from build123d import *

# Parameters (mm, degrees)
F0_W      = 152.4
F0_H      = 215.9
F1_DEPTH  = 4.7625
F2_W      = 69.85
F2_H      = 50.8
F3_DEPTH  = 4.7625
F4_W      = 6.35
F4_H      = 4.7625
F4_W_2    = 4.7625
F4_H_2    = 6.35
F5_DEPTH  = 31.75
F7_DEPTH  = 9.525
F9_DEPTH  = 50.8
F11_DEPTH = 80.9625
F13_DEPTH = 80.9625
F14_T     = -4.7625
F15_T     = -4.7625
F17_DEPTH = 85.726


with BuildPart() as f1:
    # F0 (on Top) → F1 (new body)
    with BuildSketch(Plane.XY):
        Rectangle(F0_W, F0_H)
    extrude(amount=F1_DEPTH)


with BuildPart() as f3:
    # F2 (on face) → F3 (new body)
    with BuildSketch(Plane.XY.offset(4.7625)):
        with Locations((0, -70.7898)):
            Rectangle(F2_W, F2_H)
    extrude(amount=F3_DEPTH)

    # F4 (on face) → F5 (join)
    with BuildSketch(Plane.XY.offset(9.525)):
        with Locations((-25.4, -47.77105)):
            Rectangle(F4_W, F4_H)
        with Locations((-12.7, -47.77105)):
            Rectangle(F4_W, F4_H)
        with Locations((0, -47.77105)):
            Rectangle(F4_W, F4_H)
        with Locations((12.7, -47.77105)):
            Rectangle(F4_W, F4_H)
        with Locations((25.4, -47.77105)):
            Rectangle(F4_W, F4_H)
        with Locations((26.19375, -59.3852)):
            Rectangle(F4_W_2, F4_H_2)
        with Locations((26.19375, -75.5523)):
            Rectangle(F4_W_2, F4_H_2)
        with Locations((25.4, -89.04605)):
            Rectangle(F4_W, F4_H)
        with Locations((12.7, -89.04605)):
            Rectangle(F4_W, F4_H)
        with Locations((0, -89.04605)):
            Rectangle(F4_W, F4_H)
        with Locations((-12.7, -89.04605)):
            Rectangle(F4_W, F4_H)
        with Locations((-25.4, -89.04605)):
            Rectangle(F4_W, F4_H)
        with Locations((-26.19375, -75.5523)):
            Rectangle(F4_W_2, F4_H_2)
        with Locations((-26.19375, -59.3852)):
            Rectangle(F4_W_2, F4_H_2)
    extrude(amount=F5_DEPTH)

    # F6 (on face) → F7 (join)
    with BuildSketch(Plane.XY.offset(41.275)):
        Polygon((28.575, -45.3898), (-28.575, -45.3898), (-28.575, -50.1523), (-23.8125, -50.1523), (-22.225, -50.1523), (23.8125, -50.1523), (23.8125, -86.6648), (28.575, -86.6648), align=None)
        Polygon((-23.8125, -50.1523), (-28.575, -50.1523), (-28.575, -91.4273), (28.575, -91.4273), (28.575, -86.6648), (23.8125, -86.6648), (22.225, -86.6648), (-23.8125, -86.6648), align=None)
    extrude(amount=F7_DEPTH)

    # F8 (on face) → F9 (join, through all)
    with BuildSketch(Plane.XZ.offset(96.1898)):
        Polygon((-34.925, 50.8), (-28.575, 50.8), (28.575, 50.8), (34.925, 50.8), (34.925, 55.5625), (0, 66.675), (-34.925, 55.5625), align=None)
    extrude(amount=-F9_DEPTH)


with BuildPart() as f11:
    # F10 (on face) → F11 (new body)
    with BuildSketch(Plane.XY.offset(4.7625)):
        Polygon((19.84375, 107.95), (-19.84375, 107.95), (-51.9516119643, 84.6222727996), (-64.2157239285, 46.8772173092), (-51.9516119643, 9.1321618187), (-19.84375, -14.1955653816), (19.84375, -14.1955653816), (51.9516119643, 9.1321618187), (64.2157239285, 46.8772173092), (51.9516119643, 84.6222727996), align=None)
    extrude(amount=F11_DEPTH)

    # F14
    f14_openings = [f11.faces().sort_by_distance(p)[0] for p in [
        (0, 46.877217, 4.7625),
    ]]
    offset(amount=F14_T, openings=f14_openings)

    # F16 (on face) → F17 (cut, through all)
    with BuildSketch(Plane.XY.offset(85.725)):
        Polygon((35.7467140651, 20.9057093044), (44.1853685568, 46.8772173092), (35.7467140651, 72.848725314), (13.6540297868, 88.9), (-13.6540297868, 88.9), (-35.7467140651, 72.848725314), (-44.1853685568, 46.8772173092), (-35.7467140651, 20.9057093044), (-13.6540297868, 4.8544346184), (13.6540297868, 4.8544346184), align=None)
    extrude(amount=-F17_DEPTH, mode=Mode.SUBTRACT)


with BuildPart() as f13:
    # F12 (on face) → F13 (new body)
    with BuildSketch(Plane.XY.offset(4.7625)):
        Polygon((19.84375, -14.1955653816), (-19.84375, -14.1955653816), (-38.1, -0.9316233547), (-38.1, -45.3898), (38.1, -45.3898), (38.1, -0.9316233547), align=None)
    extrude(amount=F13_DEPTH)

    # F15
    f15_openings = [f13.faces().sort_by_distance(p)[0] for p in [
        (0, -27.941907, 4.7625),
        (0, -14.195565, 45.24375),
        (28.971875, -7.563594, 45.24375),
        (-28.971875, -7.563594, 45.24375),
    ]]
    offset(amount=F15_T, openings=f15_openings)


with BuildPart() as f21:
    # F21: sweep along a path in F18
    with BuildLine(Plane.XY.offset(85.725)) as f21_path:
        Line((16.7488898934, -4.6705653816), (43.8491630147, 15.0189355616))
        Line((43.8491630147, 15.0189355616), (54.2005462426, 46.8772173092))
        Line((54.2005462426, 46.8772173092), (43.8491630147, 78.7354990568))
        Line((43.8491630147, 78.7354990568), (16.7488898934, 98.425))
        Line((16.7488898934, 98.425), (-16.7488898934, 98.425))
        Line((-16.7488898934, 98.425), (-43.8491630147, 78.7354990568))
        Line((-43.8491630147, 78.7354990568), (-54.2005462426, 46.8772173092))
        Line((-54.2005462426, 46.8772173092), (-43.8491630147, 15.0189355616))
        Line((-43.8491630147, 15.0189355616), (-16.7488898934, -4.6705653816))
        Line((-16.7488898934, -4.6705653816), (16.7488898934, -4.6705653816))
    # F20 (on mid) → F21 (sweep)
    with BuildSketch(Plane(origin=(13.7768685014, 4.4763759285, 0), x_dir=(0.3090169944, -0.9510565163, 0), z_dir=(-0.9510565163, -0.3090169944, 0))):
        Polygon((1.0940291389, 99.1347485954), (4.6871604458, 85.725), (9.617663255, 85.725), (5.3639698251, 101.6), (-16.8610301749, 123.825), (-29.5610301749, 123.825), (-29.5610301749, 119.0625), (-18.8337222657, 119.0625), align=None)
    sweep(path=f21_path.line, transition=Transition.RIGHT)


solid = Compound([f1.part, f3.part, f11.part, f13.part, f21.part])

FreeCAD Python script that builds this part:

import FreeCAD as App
import Part
import Sketcher

V = App.Vector
Q = App.Units.Quantity


def faces_at(feature, points):
    """Names of the faces that lie closest to the given points."""
    faces = feature.Shape.Faces
    near = lambda p: min(range(len(faces)), key=lambda i: faces[i].distToShape(Part.Vertex(*p))[0])
    return sorted({f"Face{near(p) + 1}" for p in points})

doc = App.newDocument("Part")
body = doc.addObject("PartDesign::Body", "Body")

sketch1 = body.newObject("Sketcher::SketchObject", "Sketch")
sketch1.AttachmentSupport = (doc.getObject("XY_Plane"), [""])
sketch1.MapMode = "FlatFace"
sketch1.addGeometry(Part.LineSegment(V(-76.2, 107.95, 0), V(-76.2, -107.95, 0)), False)
sketch1.addGeometry(Part.LineSegment(V(-76.2, -107.95, 0), V(76.2, -107.95, 0)), False)
sketch1.addGeometry(Part.LineSegment(V(76.2, -107.95, 0), V(76.2, 107.95, 0)), False)
sketch1.addGeometry(Part.LineSegment(V(76.2, 107.95, 0), V(-76.2, 107.95, 0)), False)
sketch1.addConstraint(Sketcher.Constraint("Coincident", 0, 2, 1, 1))
sketch1.addConstraint(Sketcher.Constraint("Coincident", 1, 2, 2, 1))
sketch1.addConstraint(Sketcher.Constraint("Coincident", 2, 2, 3, 1))
sketch1.addConstraint(Sketcher.Constraint("Coincident", 3, 2, 0, 1))
sketch1.addConstraint(Sketcher.Constraint("Vertical", 0))
sketch1.addConstraint(Sketcher.Constraint("Horizontal", 1))
sketch1.addConstraint(Sketcher.Constraint("Vertical", 2))
sketch1.addConstraint(Sketcher.Constraint("Horizontal", 3))
sketch1.addConstraint(Sketcher.Constraint("Symmetric", 0, 2, 2, 2, -1, 1))
sketch1.addConstraint(Sketcher.Constraint("DistanceX", 1, 1, 1, 2, Q("6 in")))
sketch1.addConstraint(Sketcher.Constraint("DistanceY", 0, 2, 0, 1, Q("8.5 in")))
pad1 = body.newObject("PartDesign::Pad", "Pad")
pad1.Profile = sketch1
pad1.Length = Q("0.1875 in")
body2 = doc.addObject("PartDesign::Body", "Body001")

sketch2 = body2.newObject("Sketcher::SketchObject", "Sketch001")
sketch2.AttachmentSupport = (doc.getObject("XY_Plane001"), [""])
sketch2.MapMode = "FlatFace"
sketch2.AttachmentOffset = App.Placement(V(0, 0, 0.1875 * 25.4), App.Rotation())
sketch2.addGeometry(Part.LineSegment(V(-34.925, -45.3898, 0), V(-34.925, -96.1898, 0)), False)
sketch2.addGeometry(Part.LineSegment(V(-34.925, -96.1898, 0), V(34.925, -96.1898, 0)), False)
sketch2.addGeometry(Part.LineSegment(V(34.925, -96.1898, 0), V(34.925, -45.3898, 0)), False)
sketch2.addGeometry(Part.LineSegment(V(34.925, -45.3898, 0), V(-34.925, -45.3898, 0)), False)
sketch2.addConstraint(Sketcher.Constraint("Coincident", 0, 2, 1, 1))
sketch2.addConstraint(Sketcher.Constraint("Coincident", 1, 2, 2, 1))
sketch2.addConstraint(Sketcher.Constraint("Coincident", 2, 2, 3, 1))
sketch2.addConstraint(Sketcher.Constraint("Coincident", 3, 2, 0, 1))
sketch2.addConstraint(Sketcher.Constraint("Vertical", 0))
sketch2.addConstraint(Sketcher.Constraint("Horizontal", 1))
sketch2.addConstraint(Sketcher.Constraint("Vertical", 2))
sketch2.addConstraint(Sketcher.Constraint("Horizontal", 3))
sketch2.addConstraint(Sketcher.Constraint("DistanceY", 0, 2, 0, 1, Q("2 in")))
sketch2.addConstraint(Sketcher.Constraint("DistanceX", 1, 1, 1, 2, Q("2.75 in")))
sketch2.addConstraint(Sketcher.Constraint("DistanceX", 0, 2, -1, 1, Q("1.375 in")))
sketch2.addConstraint(Sketcher.Constraint("DistanceY", 0, 2, -1, 1, Q("3.787 in")))
pad2 = body2.newObject("PartDesign::Pad", "Pad001")
pad2.Profile = sketch2
pad2.Length = Q("0.1875 in")

sketch3 = body2.newObject("Sketcher::SketchObject", "Sketch002")
sketch3.AttachmentSupport = (doc.getObject("XY_Plane001"), [""])
sketch3.MapMode = "FlatFace"
sketch3.AttachmentOffset = App.Placement(V(0, 0, 0.375 * 25.4), App.Rotation())
sketch3.addGeometry(Part.LineSegment(V(-28.575, -45.3898, 0), V(-28.575, -50.1523, 0)), False)
sketch3.addGeometry(Part.LineSegment(V(-28.575, -50.1523, 0), V(-22.225, -50.1523, 0)), False)
sketch3.addGeometry(Part.LineSegment(V(-22.225, -50.1523, 0), V(-22.225, -45.3898, 0)), False)
sketch3.addGeometry(Part.LineSegment(V(-22.225, -45.3898, 0), V(-28.575, -45.3898, 0)), False)
sketch3.addGeometry(Part.LineSegment(V(-15.875, -45.3898, 0), V(-15.875, -50.1523, 0)), False)
sketch3.addGeometry(Part.LineSegment(V(-15.875, -50.1523, 0), V(-9.525, -50.1523, 0)), False)
sketch3.addGeometry(Part.LineSegment(V(-9.525, -50.1523, 0), V(-9.525, -45.3898, 0)), False)
sketch3.addGeometry(Part.LineSegment(V(-9.525, -45.3898, 0), V(-15.875, -45.3898, 0)), False)
sketch3.addGeometry(Part.LineSegment(V(-3.175, -45.3898, 0), V(-3.175, -50.1523, 0)), False)
sketch3.addGeometry(Part.LineSegment(V(-3.175, -50.1523, 0), V(3.175, -50.1523, 0)), False)
sketch3.addGeometry(Part.LineSegment(V(3.175, -50.1523, 0), V(3.175, -45.3898, 0)), False)
sketch3.addGeometry(Part.LineSegment(V(3.175, -45.3898, 0), V(-3.175, -45.3898, 0)), False)
sketch3.addGeometry(Part.LineSegment(V(9.525, -45.3898, 0), V(9.525, -50.1523, 0)), False)
sketch3.addGeometry(Part.LineSegment(V(9.525, -50.1523, 0), V(15.875, -50.1523, 0)), False)
sketch3.addGeometry(Part.LineSegment(V(15.875, -50.1523, 0), V(15.875, -45.3898, 0)), False)
sketch3.addGeometry(Part.LineSegment(V(15.875, -45.3898, 0), V(9.525, -45.3898, 0)), False)
sketch3.addGeometry(Part.LineSegment(V(22.225, -45.3898, 0), V(22.225, -50.1523, 0)), False)
sketch3.addGeometry(Part.LineSegment(V(22.225, -50.1523, 0), V(28.575, -50.1523, 0)), False)
sketch3.addGeometry(Part.LineSegment(V(28.575, -50.1523, 0), V(28.575, -45.3898, 0)), False)
sketch3.addGeometry(Part.LineSegment(V(28.575, -45.3898, 0), V(22.225, -45.3898, 0)), False)
sketch3.addGeometry(Part.LineSegment(V(23.8125, -56.2102, 0), V(23.8125, -62.5602, 0)), False)
sketch3.addGeometry(Part.LineSegment(V(23.8125, -62.5602, 0), V(28.575, -62.5602, 0)), False)
sketch3.addGeometry(Part.LineSegment(V(28.575, -62.5602, 0), V(28.575, -56.2102, 0)), False)
sketch3.addGeometry(Part.LineSegment(V(28.575, -56.2102, 0), V(23.8125, -56.2102, 0)), False)
sketch3.addGeometry(Part.LineSegment(V(23.8125, -72.3773, 0), V(23.8125, -78.7273, 0)), False)
sketch3.addGeometry(Part.LineSegment(V(23.8125, -78.7273, 0), V(28.575, -78.7273, 0)), False)
sketch3.addGeometry(Part.LineSegment(V(28.575, -78.7273, 0), V(28.575, -72.3773, 0)), False)
sketch3.addGeometry(Part.LineSegment(V(28.575, -72.3773, 0), V(23.8125, -72.3773, 0)), False)
sketch3.addGeometry(Part.LineSegment(V(22.225, -86.6648, 0), V(22.225, -91.4273, 0)), False)
sketch3.addGeometry(Part.LineSegment(V(22.225, -91.4273, 0), V(28.575, -91.4273, 0)), False)
sketch3.addGeometry(Part.LineSegment(V(28.575, -91.4273, 0), V(28.575, -86.6648, 0)), False)
sketch3.addGeometry(Part.LineSegment(V(28.575, -86.6648, 0), V(22.225, -86.6648, 0)), False)
sketch3.addGeometry(Part.LineSegment(V(9.525, -86.6648, 0), V(9.525, -91.4273, 0)), False)
sketch3.addGeometry(Part.LineSegment(V(9.525, -91.4273, 0), V(15.875, -91.4273, 0)), False)
sketch3.addGeometry(Part.LineSegment(V(15.875, -91.4273, 0), V(15.875, -86.6648, 0)), False)
sketch3.addGeometry(Part.LineSegment(V(15.875, -86.6648, 0), V(9.525, -86.6648, 0)), False)
sketch3.addGeometry(Part.LineSegment(V(-3.175, -86.6648, 0), V(-3.175, -91.4273, 0)), False)
sketch3.addGeometry(Part.LineSegment(V(-3.175, -91.4273, 0), V(3.175, -91.4273, 0)), False)
sketch3.addGeometry(Part.LineSegment(V(3.175, -91.4273, 0), V(3.175, -86.6648, 0)), False)
sketch3.addGeometry(Part.LineSegment(V(3.175, -86.6648, 0), V(-3.175, -86.6648, 0)), False)
sketch3.addGeometry(Part.LineSegment(V(-15.875, -86.6648, 0), V(-15.875, -91.4273, 0)), False)
sketch3.addGeometry(Part.LineSegment(V(-15.875, -91.4273, 0), V(-9.525, -91.4273, 0)), False)
sketch3.addGeometry(Part.LineSegment(V(-9.525, -91.4273, 0), V(-9.525, -86.6648, 0)), False)
sketch3.addGeometry(Part.LineSegment(V(-9.525, -86.6648, 0), V(-15.875, -86.6648, 0)), False)
sketch3.addGeometry(Part.LineSegment(V(-28.575, -86.6648, 0), V(-28.575, -91.4273, 0)), False)
sketch3.addGeometry(Part.LineSegment(V(-28.575, -91.4273, 0), V(-22.225, -91.4273, 0)), False)
sketch3.addGeometry(Part.LineSegment(V(-22.225, -91.4273, 0), V(-22.225, -86.6648, 0)), False)
sketch3.addGeometry(Part.LineSegment(V(-22.225, -86.6648, 0), V(-28.575, -86.6648, 0)), False)
sketch3.addGeometry(Part.LineSegment(V(-28.575, -72.3773, 0), V(-28.575, -78.7273, 0)), False)
sketch3.addGeometry(Part.LineSegment(V(-28.575, -78.7273, 0), V(-23.8125, -78.7273, 0)), False)
sketch3.addGeometry(Part.LineSegment(V(-23.8125, -78.7273, 0), V(-23.8125, -72.3773, 0)), False)
sketch3.addGeometry(Part.LineSegment(V(-23.8125, -72.3773, 0), V(-28.575, -72.3773, 0)), False)
sketch3.addGeometry(Part.LineSegment(V(-28.575, -56.2102, 0), V(-28.575, -62.5602, 0)), False)
sketch3.addGeometry(Part.LineSegment(V(-28.575, -62.5602, 0), V(-23.8125, -62.5602, 0)), False)
sketch3.addGeometry(Part.LineSegment(V(-23.8125, -62.5602, 0), V(-23.8125, -56.2102, 0)), False)
sketch3.addGeometry(Part.LineSegment(V(-23.8125, -56.2102, 0), V(-28.575, -56.2102, 0)), False)
sketch3.addConstraint(Sketcher.Constraint("Coincident", 0, 2, 1, 1))
sketch3.addConstraint(Sketcher.Constraint("Coincident", 1, 2, 2, 1))
sketch3.addConstraint(Sketcher.Constraint("Coincident", 2, 2, 3, 1))
sketch3.addConstraint(Sketcher.Constraint("Coincident", 3, 2, 0, 1))
sketch3.addConstraint(Sketcher.Constraint("Coincident", 4, 2, 5, 1))
sketch3.addConstraint(Sketcher.Constraint("Coincident", 5, 2, 6, 1))
sketch3.addConstraint(Sketcher.Constraint("Coincident", 6, 2, 7, 1))
sketch3.addConstraint(Sketcher.Constraint("Coincident", 7, 2, 4, 1))
sketch3.addConstraint(Sketcher.Constraint("Coincident", 8, 2, 9, 1))
sketch3.addConstraint(Sketcher.Constraint("Coincident", 9, 2, 10, 1))
sketch3.addConstraint(Sketcher.Constraint("Coincident", 10, 2, 11, 1))
sketch3.addConstraint(Sketcher.Constraint("Coincident", 11, 2, 8, 1))
sketch3.addConstraint(Sketcher.Constraint("Coincident", 12, 2, 13, 1))
sketch3.addConstraint(Sketcher.Constraint("Coincident", 13, 2, 14, 1))
sketch3.addConstraint(Sketcher.Constraint("Coincident", 14, 2, 15, 1))
sketch3.addConstraint(Sketcher.Constraint("Coincident", 15, 2, 12, 1))
sketch3.addConstraint(Sketcher.Constraint("Coincident", 16, 2, 17, 1))
sketch3.addConstraint(Sketcher.Constraint("Coincident", 17, 2, 18, 1))
sketch3.addConstraint(Sketcher.Constraint("Coincident", 18, 2, 19, 1))
sketch3.addConstraint(Sketcher.Constraint("Coincident", 19, 2, 16, 1))
sketch3.addConstraint(Sketcher.Constraint("Coincident", 20, 2, 21, 1))
sketch3.addConstraint(Sketcher.Constraint("Coincident", 21, 2, 22, 1))
sketch3.addConstraint(Sketcher.Constraint("Coincident", 22, 2, 23, 1))
sketch3.addConstraint(Sketcher.Constraint("Coincident", 23, 2, 20, 1))
sketch3.addConstraint(Sketcher.Constraint("Coincident", 24, 2, 25, 1))
sketch3.addConstraint(Sketcher.Constraint("Coincident", 25, 2, 26, 1))
sketch3.addConstraint(Sketcher.Constraint("Coincident", 26, 2, 27, 1))
sketch3.addConstraint(Sketcher.Constraint("Coincident", 27, 2, 24, 1))
sketch3.addConstraint(Sketcher.Constraint("Coincident", 28, 2, 29, 1))
sketch3.addConstraint(Sketcher.Constraint("Coincident", 29, 2, 30, 1))
sketch3.addConstraint(Sketcher.Constraint("Coincident", 30, 2, 31, 1))
sketch3.addConstraint(Sketcher.Constraint("Coincident", 31, 2, 28, 1))
sketch3.addConstraint(Sketcher.Constraint("Coincident", 32, 2, 33, 1))
sketch3.addConstraint(Sketcher.Constraint("Coincident", 33, 2, 34, 1))
sketch3.addConstraint(Sketcher.Constraint("Coincident", 34, 2, 35, 1))
sketch3.addConstraint(Sketcher.Constraint("Coincident", 35, 2, 32, 1))
sketch3.addConstraint(Sketcher.Constraint("Coincident", 36, 2, 37, 1))
sketch3.addConstraint(Sketcher.Constraint("Coincident", 37, 2, 38, 1))
sketch3.addConstraint(Sketcher.Constraint("Coincident", 38, 2, 39, 1))
sketch3.addConstraint(Sketcher.Constraint("Coincident", 39, 2, 36, 1))
sketch3.addConstraint(Sketcher.Constraint("Coincident", 40, 2, 41, 1))
sketch3.addConstraint(Sketcher.Constraint("Coincident", 41, 2, 42, 1))
sketch3.addConstraint(Sketcher.Constraint("Coincident", 42, 2, 43, 1))
sketch3.addConstraint(Sketcher.Constraint("Coincident", 43, 2, 40, 1))
sketch3.addConstraint(Sketcher.Constraint("Coincident", 44, 2, 45, 1))
sketch3.addConstraint(Sketcher.Constraint("Coincident", 45, 2, 46, 1))
sketch3.addConstraint(Sketcher.Constraint("Coincident", 46, 2, 47, 1))
sketch3.addConstraint(Sketcher.Constraint("Coincident", 47, 2, 44, 1))
sketch3.addConstraint(Sketcher.Constraint("Coincident", 48, 2, 49, 1))
sketch3.addConstraint(Sketcher.Constraint("Coincident", 49, 2, 50, 1))
sketch3.addConstraint(Sketcher.Constraint("Coincident", 50, 2, 51, 1))
sketch3.addConstraint(Sketcher.Constraint("Coincident", 51, 2, 48, 1))
sketch3.addConstraint(Sketcher.Constraint("Coincident", 52, 2, 53, 1))
sketch3.addConstraint(Sketcher.Constraint("Coincident", 53, 2, 54, 1))
sketch3.addConstraint(Sketcher.Constraint("Coincident", 54, 2, 55, 1))
sketch3.addConstraint(Sketcher.Constraint("Coincident", 55, 2, 52, 1))
sketch3.addConstraint(Sketcher.Constraint("Vertical", 0))
sketch3.addConstraint(Sketcher.Constraint("Horizontal", 1))
sketch3.addConstraint(Sketcher.Constraint("Vertical", 2))
sketch3.addConstraint(Sketcher.Constraint("Horizontal", 3))
sketch3.addConstraint(Sketcher.Constraint("Vertical", 4))
sketch3.addConstraint(Sketcher.Constraint("Horizontal", 5))
sketch3.addConstraint(Sketcher.Constraint("Vertical", 6))
sketch3.addConstraint(Sketcher.Constraint("Horizontal", 7))
sketch3.addConstraint(Sketcher.Constraint("Vertical", 8))
sketch3.addConstraint(Sketcher.Constraint("Horizontal", 9))
sketch3.addConstraint(Sketcher.Constraint("Vertical", 10))
sketch3.addConstraint(Sketcher.Constraint("Horizontal", 11))
sketch3.addConstraint(Sketcher.Constraint("Vertical", 12))
sketch3.addConstraint(Sketcher.Constraint("Horizontal", 13))
sketch3.addConstraint(Sketcher.Constraint("Vertical", 14))
sketch3.addConstraint(Sketcher.Constraint("Horizontal", 15))
sketch3.addConstraint(Sketcher.Constraint("Vertical", 16))
sketch3.addConstraint(Sketcher.Constraint("Horizontal", 17))
sketch3.addConstraint(Sketcher.Constraint("Vertical", 18))
sketch3.addConstraint(Sketcher.Constraint("Horizontal", 19))
sketch3.addConstraint(Sketcher.Constraint("Vertical", 20))
sketch3.addConstraint(Sketcher.Constraint("Horizontal", 21))
sketch3.addConstraint(Sketcher.Constraint("Vertical", 22))
sketch3.addConstraint(Sketcher.Constraint("Horizontal", 23))
sketch3.addConstraint(Sketcher.Constraint("Vertical", 24))
sketch3.addConstraint(Sketcher.Constraint("Horizontal", 25))
sketch3.addConstraint(Sketcher.Constraint("Vertical", 26))
sketch3.addConstraint(Sketcher.Constraint("Horizontal", 27))
sketch3.addConstraint(Sketcher.Constraint("Vertical", 28))
sketch3.addConstraint(Sketcher.Constraint("Horizontal", 29))
sketch3.addConstraint(Sketcher.Constraint("Vertical", 30))
sketch3.addConstraint(Sketcher.Constraint("Horizontal", 31))
sketch3.addConstraint(Sketcher.Constraint("Vertical", 32))
sketch3.addConstraint(Sketcher.Constraint("Horizontal", 33))
sketch3.addConstraint(Sketcher.Constraint("Vertical", 34))
sketch3.addConstraint(Sketcher.Constraint("Horizontal", 35))
sketch3.addConstraint(Sketcher.Constraint("Vertical", 36))
sketch3.addConstraint(Sketcher.Constraint("Horizontal", 37))
sketch3.addConstraint(Sketcher.Constraint("Vertical", 38))
sketch3.addConstraint(Sketcher.Constraint("Horizontal", 39))
sketch3.addConstraint(Sketcher.Constraint("Vertical", 40))
sketch3.addConstraint(Sketcher.Constraint("Horizontal", 41))
sketch3.addConstraint(Sketcher.Constraint("Vertical", 42))
sketch3.addConstraint(Sketcher.Constraint("Horizontal", 43))
sketch3.addConstraint(Sketcher.Constraint("Vertical", 44))
sketch3.addConstraint(Sketcher.Constraint("Horizontal", 45))
sketch3.addConstraint(Sketcher.Constraint("Vertical", 46))
sketch3.addConstraint(Sketcher.Constraint("Horizontal", 47))
sketch3.addConstraint(Sketcher.Constraint("Vertical", 48))
sketch3.addConstraint(Sketcher.Constraint("Horizontal", 49))
sketch3.addConstraint(Sketcher.Constraint("Vertical", 50))
sketch3.addConstraint(Sketcher.Constraint("Horizontal", 51))
sketch3.addConstraint(Sketcher.Constraint("Vertical", 52))
sketch3.addConstraint(Sketcher.Constraint("Horizontal", 53))
sketch3.addConstraint(Sketcher.Constraint("Vertical", 54))
sketch3.addConstraint(Sketcher.Constraint("Horizontal", 55))
sketch3.addConstraint(Sketcher.Constraint("Symmetric", 5, 2, 12, 2, -2))
sketch3.addConstraint(Sketcher.Constraint("Symmetric", 7, 2, 14, 2, -2))
sketch3.addConstraint(Sketcher.Constraint("Symmetric", 1, 2, 16, 2, -2))
sketch3.addConstraint(Sketcher.Constraint("Symmetric", 3, 2, 18, 2, -2))
sketch3.addConstraint(Sketcher.Constraint("Symmetric", 33, 2, 40, 2, -2))
sketch3.addConstraint(Sketcher.Constraint("Symmetric", 35, 2, 42, 2, -2))
sketch3.addConstraint(Sketcher.Constraint("Symmetric", 29, 2, 44, 2, -2))
sketch3.addConstraint(Sketcher.Constraint("Symmetric", 31, 2, 46, 2, -2))
sketch3.addConstraint(Sketcher.Constraint("Symmetric", 25, 2, 48, 2, -2))
sketch3.addConstraint(Sketcher.Constraint("Symmetric", 27, 2, 50, 2, -2))
sketch3.addConstraint(Sketcher.Constraint("Symmetric", 21, 2, 52, 2, -2))
sketch3.addConstraint(Sketcher.Constraint("Symmetric", 23, 2, 54, 2, -2))
sketch3.addConstraint(Sketcher.Constraint("Horizontal", 1, 2, 4, 2))
sketch3.addConstraint(Sketcher.Constraint("Horizontal", 3, 2, 6, 2))
sketch3.addConstraint(Sketcher.Constraint("Horizontal", 5, 2, 8, 2))
sketch3.addConstraint(Sketcher.Constraint("Horizontal", 7, 2, 10, 2))
sketch3.addConstraint(Sketcher.Constraint("Horizontal", 29, 2, 32, 2))
sketch3.addConstraint(Sketcher.Constraint("Horizontal", 31, 2, 34, 2))
sketch3.addConstraint(Sketcher.Constraint("Horizontal", 33, 2, 36, 2))
sketch3.addConstraint(Sketcher.Constraint("Horizontal", 35, 2, 38, 2))
sketch3.addConstraint(Sketcher.Constraint("Vertical", 18, 2, 21, 2))
sketch3.addConstraint(Sketcher.Constraint("Vertical", 23, 2, 24, 2))
sketch3.addConstraint(Sketcher.Constraint("Vertical", 22, 2, 25, 2))
sketch3.addConstraint(Sketcher.Constraint("Vertical", 19, 2, 28, 2))
sketch3.addConstraint(Sketcher.Constraint("Vertical", 26, 2, 29, 2))
sketch3.addConstraint(Sketcher.Constraint("Vertical", 15, 2, 32, 2))
sketch3.addConstraint(Sketcher.Constraint("Vertical", 14, 2, 33, 2))
sketch3.addConstraint(Sketcher.Constraint("Vertical", 11, 2, 36, 2))
sketch3.addConstraint(Sketcher.Constraint("Vertical", 10, 2, 37, 2))
sketch3.addConstraint(Sketcher.Constraint("Equal", 3, 5))
sketch3.addConstraint(Sketcher.Constraint("Equal", 7, 9))
sketch3.addConstraint(Sketcher.Constraint("Equal", 55, 0))
sketch3.addConstraint(Sketcher.Constraint("Equal", 47, 20))
sketch3.addConstraint(Sketcher.Constraint("Equal", 22, 24))
sketch3.addConstraint(Sketcher.Constraint("Equal", 18, 28))
sketch3.addConstraint(Sketcher.Constraint("DistanceX", 36, 2, 28, 2, Q("1 in")))
sketch3.addConstraint(Sketcher.Constraint("DistanceX", 40, 2, 32, 2, Q("1 in")))
sketch3.addConstraint(Sketcher.Constraint("DistanceX", 44, 2, 36, 2, Q("1 in")))
sketch3.addConstraint(Sketcher.Constraint("DistanceX", 1, 1, 1, 2, Q("0.25 in")))
sketch3.addConstraint(Sketcher.Constraint("DistanceY", 28, 2, 24, 2, Q("0.5 in")))
sketch3.addConstraint(Sketcher.Constraint("DistanceX", 21, 1, 21, 2, Q("0.1875 in")))
sketch3.addConstraint(Sketcher.Constraint("DistanceY", 2, 2, -1, 1, Q("1.787 in")))
sketch3.addConstraint(Sketcher.Constraint("DistanceY", 20, 2, -1, 1, Q("2.463 in")))
sketch3.addConstraint(Sketcher.Constraint("DistanceY", 30, 2, -1, 1, Q("3.412 in")))
pad3 = body2.newObject("PartDesign::Pad", "Pad002")
pad3.Profile = sketch3
pad3.Length = Q("1.25 in")

sketch4 = body2.newObject("Sketcher::SketchObject", "Sketch003")
sketch4.AttachmentSupport = (doc.getObject("XY_Plane001"), [""])
sketch4.MapMode = "FlatFace"
sketch4.AttachmentOffset = App.Placement(V(0, 0, 1.625 * 25.4), App.Rotation())
sketch4.addGeometry(Part.LineSegment(V(28.575, -45.3898, 0), V(-28.575, -45.3898, 0)), False)
sketch4.addGeometry(Part.LineSegment(V(-28.575, -45.3898, 0), V(-28.575, -91.4273, 0)), False)
sketch4.addGeometry(Part.LineSegment(V(-28.575, -91.4273, 0), V(28.575, -91.4273, 0)), False)
sketch4.addGeometry(Part.LineSegment(V(28.575, -91.4273, 0), V(28.575, -45.3898, 0)), False)
sketch4.addGeometry(Part.LineSegment(V(-23.8125, -50.1523, 0), V(23.8125, -50.1523, 0)), False)
sketch4.addGeometry(Part.LineSegment(V(23.8125, -50.1523, 0), V(23.8125, -86.6648, 0)), False)
sketch4.addGeometry(Part.LineSegment(V(23.8125, -86.6648, 0), V(-23.8125, -86.6648, 0)), False)
sketch4.addGeometry(Part.LineSegment(V(-23.8125, -86.6648, 0), V(-23.8125, -50.1523, 0)), False)
sketch4.addConstraint(Sketcher.Constraint("Coincident", 0, 2, 1, 1))
sketch4.addConstraint(Sketcher.Constraint("Coincident", 1, 2, 2, 1))
sketch4.addConstraint(Sketcher.Constraint("Coincident", 2, 2, 3, 1))
sketch4.addConstraint(Sketcher.Constraint("Coincident", 3, 2, 0, 1))
sketch4.addConstraint(Sketcher.Constraint("Coincident", 4, 2, 5, 1))
sketch4.addConstraint(Sketcher.Constraint("Coincident", 5, 2, 6, 1))
sketch4.addConstraint(Sketcher.Constraint("Coincident", 6, 2, 7, 1))
sketch4.addConstraint(Sketcher.Constraint("Coincident", 7, 2, 4, 1))
sketch4.addConstraint(Sketcher.Constraint("Horizontal", 0))
sketch4.addConstraint(Sketcher.Constraint("Vertical", 1))
sketch4.addConstraint(Sketcher.Constraint("Horizontal", 2))
sketch4.addConstraint(Sketcher.Constraint("Vertical", 3))
sketch4.addConstraint(Sketcher.Constraint("Horizontal", 4))
sketch4.addConstraint(Sketcher.Constraint("Vertical", 5))
sketch4.addConstraint(Sketcher.Constraint("Horizontal", 6))
sketch4.addConstraint(Sketcher.Constraint("Vertical", 7))
sketch4.addConstraint(Sketcher.Constraint("DistanceX", 0, 2, 0, 1, Q("2.25 in")))
sketch4.addConstraint(Sketcher.Constraint("DistanceX", 4, 1, 4, 2, Q("1.875 in")))
sketch4.addConstraint(Sketcher.Constraint("DistanceY", 1, 2, 1, 1, Q("1.8125 in")))
sketch4.addConstraint(Sketcher.Constraint("DistanceY", 5, 2, 5, 1, Q("1.4375 in")))
sketch4.addConstraint(Sketcher.Constraint("DistanceX", 0, 2, -1, 1, Q("1.125 in")))
sketch4.addConstraint(Sketcher.Constraint("DistanceY", 0, 2, -1, 1, Q("1.787 in")))
sketch4.addConstraint(Sketcher.Constraint("DistanceX", -1, 1, 4, 2, Q("0.9375 in")))
sketch4.addConstraint(Sketcher.Constraint("DistanceY", 5, 2, -1, 1, Q("3.412 in")))
pad4 = body2.newObject("PartDesign::Pad", "Pad003")
pad4.Profile = sketch4
pad4.Length = Q("0.375 in")

sketch5 = body2.newObject("Sketcher::SketchObject", "Sketch004")
sketch5.AttachmentSupport = (doc.getObject("XZ_Plane001"), [""])
sketch5.MapMode = "FlatFace"
sketch5.AttachmentOffset = App.Placement(V(0, 0, 3.787 * 25.4), App.Rotation())
sketch5.addGeometry(Part.LineSegment(V(-34.925, 50.8, 0), V(34.925, 50.8, 0)), False)
sketch5.addGeometry(Part.LineSegment(V(34.925, 50.8, 0), V(34.925, 55.5625, 0)), False)
sketch5.addGeometry(Part.LineSegment(V(34.925, 55.5625, 0), V(0, 66.675, 0)), False)
sketch5.addGeometry(Part.LineSegment(V(0, 66.675, 0), V(-34.925, 55.5625, 0)), False)
sketch5.addGeometry(Part.LineSegment(V(-34.925, 55.5625, 0), V(-34.925, 50.8, 0)), False)
sketch5.addConstraint(Sketcher.Constraint("Coincident", 0, 2, 1, 1))
sketch5.addConstraint(Sketcher.Constraint("Coincident", 1, 2, 2, 1))
sketch5.addConstraint(Sketcher.Constraint("Coincident", 2, 2, 3, 1))
sketch5.addConstraint(Sketcher.Constraint("Coincident", 3, 2, 4, 1))
sketch5.addConstraint(Sketcher.Constraint("Coincident", 4, 2, 0, 1))
sketch5.addConstraint(Sketcher.Constraint("Horizontal", 0))
sketch5.addConstraint(Sketcher.Constraint("Vertical", 1))
sketch5.addConstraint(Sketcher.Constraint("Vertical", 4))
sketch5.addConstraint(Sketcher.Constraint("Symmetric", 1, 2, 3, 2, -2))
sketch5.addConstraint(Sketcher.Constraint("PointOnObject", 2, 2, -2))
sketch5.addConstraint(Sketcher.Constraint("DistanceY", -1, 1, 0, 2, Q("2 in")))
sketch5.addConstraint(Sketcher.Constraint("DistanceX", 0, 1, 0, 2, Q("2.75 in")))
sketch5.addConstraint(Sketcher.Constraint("DistanceY", 1, 1, 1, 2, Q("0.1875 in")))
sketch5.addConstraint(Sketcher.Constraint("DistanceY", -1, 1, 2, 2, Q("2.625 in")))
pad5 = body2.newObject("PartDesign::Pad", "Pad004")
pad5.Profile = sketch5
pad5.Length = Q("2 in")
pad5.Reversed = True
body3 = doc.addObject("PartDesign::Body", "Body002")

sketch6 = body3.newObject("Sketcher::SketchObject", "Sketch005")
sketch6.AttachmentSupport = (doc.getObject("XY_Plane002"), [""])
sketch6.MapMode = "FlatFace"
sketch6.AttachmentOffset = App.Placement(V(0, 0, 0.1875 * 25.4), App.Rotation())
sketch6.addGeometry(Part.LineSegment(V(19.84375, 107.95, 0), V(-19.84375, 107.95, 0)), False)
sketch6.addGeometry(Part.LineSegment(V(-19.84375, 107.95, 0), V(-51.951612, 84.622273, 0)), False)
sketch6.addGeometry(Part.LineSegment(V(-51.951612, 84.622273, 0), V(-64.215724, 46.877217, 0)), False)
sketch6.addGeometry(Part.LineSegment(V(-64.215724, 46.877217, 0), V(-51.951612, 9.132162, 0)), False)
sketch6.addGeometry(Part.LineSegment(V(-51.951612, 9.132162, 0), V(-19.84375, -14.195565, 0)), False)
sketch6.addGeometry(Part.LineSegment(V(-19.84375, -14.195565, 0), V(19.84375, -14.195565, 0)), False)
sketch6.addGeometry(Part.LineSegment(V(19.84375, -14.195565, 0), V(51.951612, 9.132162, 0)), False)
sketch6.addGeometry(Part.LineSegment(V(51.951612, 9.132162, 0), V(64.215724, 46.877217, 0)), False)
sketch6.addGeometry(Part.LineSegment(V(64.215724, 46.877217, 0), V(51.951612, 84.622273, 0)), False)
sketch6.addGeometry(Part.LineSegment(V(51.951612, 84.622273, 0), V(19.84375, 107.95, 0)), False)
sketch6.addConstraint(Sketcher.Constraint("Coincident", 0, 2, 1, 1))
sketch6.addConstraint(Sketcher.Constraint("Coincident", 1, 2, 2, 1))
sketch6.addConstraint(Sketcher.Constraint("Coincident", 2, 2, 3, 1))
sketch6.addConstraint(Sketcher.Constraint("Coincident", 3, 2, 4, 1))
sketch6.addConstraint(Sketcher.Constraint("Coincident", 4, 2, 5, 1))
sketch6.addConstraint(Sketcher.Constraint("Coincident", 5, 2, 6, 1))
sketch6.addConstraint(Sketcher.Constraint("Coincident", 6, 2, 7, 1))
sketch6.addConstraint(Sketcher.Constraint("Coincident", 7, 2, 8, 1))
sketch6.addConstraint(Sketcher.Constraint("Coincident", 8, 2, 9, 1))
sketch6.addConstraint(Sketcher.Constraint("Coincident", 9, 2, 0, 1))
sketch6.addConstraint(Sketcher.Constraint("Horizontal", 0))
sketch6.addConstraint(Sketcher.Constraint("Horizontal", 5))
sketch6.addConstraint(Sketcher.Constraint("Symmetric", 3, 2, 6, 2, -2))
sketch6.addConstraint(Sketcher.Constraint("Symmetric", 2, 2, 7, 2, -2))
sketch6.addConstraint(Sketcher.Constraint("Symmetric", 1, 2, 8, 2, -2))
sketch6.addConstraint(Sketcher.Constraint("Parallel", 1, 6))
sketch6.addConstraint(Sketcher.Constraint("Parallel", 2, 7))
sketch6.addConstraint(Sketcher.Constraint("Parallel", 4, 9))
sketch6.addConstraint(Sketcher.Constraint("Vertical", 1, 2, 3, 2))
sketch6.addConstraint(Sketcher.Constraint("Vertical", 0, 2, 4, 2))
sketch6.addConstraint(Sketcher.Constraint("Vertical", 5, 2, 9, 2))
sketch6.addConstraint(Sketcher.Constraint("Equal", 1, 2))
sketch6.addConstraint(Sketcher.Constraint("Angle", 1, Q("-144 deg")))
sketch6.addConstraint(Sketcher.Constraint("Angle", 2, Q("-108 deg")))
sketch6.addConstraint(Sketcher.Constraint("DistanceX", 0, 2, 0, 1, Q("1.5625 in")))
sketch6.addConstraint(Sketcher.Constraint("DistanceY", -1, 1, 0, 2, Q("4.25 in")))
sketch6.addConstraint(Sketcher.Constraint("Distance", 1, Q("1.5625 in")))
pad6 = body3.newObject("PartDesign::Pad", "Pad005")
pad6.Profile = sketch6
pad6.Length = Q("3.1875 in")
doc.recompute()

thickness = body3.newObject("PartDesign::Thickness", "Thickness")
thickness.Base = (pad6, faces_at(pad6, [(0, 46.877, 4.763)]))
thickness.Value = Q("0.1875 in")
thickness.Reversed = True
thickness.Join = "Arc"

sketch7 = body3.newObject("Sketcher::SketchObject", "Sketch006")
sketch7.AttachmentSupport = (doc.getObject("XY_Plane002"), [""])
sketch7.MapMode = "FlatFace"
sketch7.AttachmentOffset = App.Placement(V(0, 0, 3.375 * 25.4), App.Rotation())
sketch7.addGeometry(Part.LineSegment(V(35.746714, 20.905709, 0), V(44.185369, 46.877217, 0)), False)
sketch7.addGeometry(Part.LineSegment(V(44.185369, 46.877217, 0), V(35.746714, 72.848725, 0)), False)
sketch7.addGeometry(Part.LineSegment(V(35.746714, 72.848725, 0), V(13.65403, 88.9, 0)), False)
sketch7.addGeometry(Part.LineSegment(V(13.65403, 88.9, 0), V(-13.65403, 88.9, 0)), False)
sketch7.addGeometry(Part.LineSegment(V(-13.65403, 88.9, 0), V(-35.746714, 72.848725, 0)), False)
sketch7.addGeometry(Part.LineSegment(V(-35.746714, 72.848725, 0), V(-44.185369, 46.877217, 0)), False)
sketch7.addGeometry(Part.LineSegment(V(-44.185369, 46.877217, 0), V(-35.746714, 20.905709, 0)), False)
sketch7.addGeometry(Part.LineSegment(V(-35.746714, 20.905709, 0), V(-13.65403, 4.854435, 0)), False)
sketch7.addGeometry(Part.LineSegment(V(-13.65403, 4.854435, 0), V(13.65403, 4.854435, 0)), False)
sketch7.addGeometry(Part.LineSegment(V(13.65403, 4.854435, 0), V(35.746714, 20.905709, 0)), False)
sketch7.addConstraint(Sketcher.Constraint("Coincident", 0, 2, 1, 1))
sketch7.addConstraint(Sketcher.Constraint("Coincident", 1, 2, 2, 1))
sketch7.addConstraint(Sketcher.Constraint("Coincident", 2, 2, 3, 1))
sketch7.addConstraint(Sketcher.Constraint("Coincident", 3, 2, 4, 1))
sketch7.addConstraint(Sketcher.Constraint("Coincident", 4, 2, 5, 1))
sketch7.addConstraint(Sketcher.Constraint("Coincident", 5, 2, 6, 1))
sketch7.addConstraint(Sketcher.Constraint("Coincident", 6, 2, 7, 1))
sketch7.addConstraint(Sketcher.Constraint("Coincident", 7, 2, 8, 1))
sketch7.addConstraint(Sketcher.Constraint("Coincident", 8, 2, 9, 1))
sketch7.addConstraint(Sketcher.Constraint("Coincident", 9, 2, 0, 1))
sketch7.addConstraint(Sketcher.Constraint("Horizontal", 3))
sketch7.addConstraint(Sketcher.Constraint("Horizontal", 8))
sketch7.addConstraint(Sketcher.Constraint("Symmetric", 1, 2, 4, 2, -2))
sketch7.addConstraint(Sketcher.Constraint("Symmetric", 0, 2, 5, 2, -2))
sketch7.addConstraint(Sketcher.Constraint("Symmetric", 6, 2, 9, 2, -2))
sketch7.addConstraint(Sketcher.Constraint("Parallel", 0, 5))
sketch7.addConstraint(Sketcher.Constraint("Parallel", 2, 7))
sketch7.addConstraint(Sketcher.Constraint("Parallel", 4, 9))
sketch7.addConstraint(Sketcher.Constraint("Vertical", 4, 2, 6, 2))
sketch7.addConstraint(Sketcher.Constraint("Vertical", 3, 2, 7, 2))
sketch7.addConstraint(Sketcher.Constraint("Vertical", 2, 2, 8, 2))
sketch7.addConstraint(Sketcher.Constraint("Equal", 1, 2))
sketch7.addConstraint(Sketcher.Constraint("Angle", 0, Q("72 deg")))
sketch7.addConstraint(Sketcher.Constraint("Angle", 2, Q("144 deg")))
sketch7.addConstraint(Sketcher.Constraint("DistanceY", -1, 1, 2, 2, Q("3.5 in")))
sketch7.addConstraint(Sketcher.Constraint("DistanceX", 3, 2, 3, 1, 27.30806))
sketch7.addConstraint(Sketcher.Constraint("DistanceX", 3, 2, 0, 2, 57.839398))
pocket1 = body3.newObject("PartDesign::Pocket", "Pocket")
pocket1.Profile = sketch7
pocket1.Type = "ThroughAll"
body4 = doc.addObject("PartDesign::Body", "Body003")

sketch8 = body4.newObject("Sketcher::SketchObject", "Sketch007")
sketch8.AttachmentSupport = (doc.getObject("XY_Plane003"), [""])
sketch8.MapMode = "FlatFace"
sketch8.AttachmentOffset = App.Placement(V(0, 0, 0.1875 * 25.4), App.Rotation())
sketch8.addGeometry(Part.LineSegment(V(19.84375, -14.195565, 0), V(-19.84375, -14.195565, 0)), False)
sketch8.addGeometry(Part.LineSegment(V(-19.84375, -14.195565, 0), V(-38.1, -0.931623, 0)), False)
sketch8.addGeometry(Part.LineSegment(V(-38.1, -0.931623, 0), V(-38.1, -45.3898, 0)), False)
sketch8.addGeometry(Part.LineSegment(V(-38.1, -45.3898, 0), V(38.1, -45.3898, 0)), False)
sketch8.addGeometry(Part.LineSegment(V(38.1, -45.3898, 0), V(38.1, -0.931623, 0)), False)
sketch8.addGeometry(Part.LineSegment(V(38.1, -0.931623, 0), V(19.84375, -14.195565, 0)), False)
sketch8.addConstraint(Sketcher.Constraint("Coincident", 0, 2, 1, 1))
sketch8.addConstraint(Sketcher.Constraint("Coincident", 1, 2, 2, 1))
sketch8.addConstraint(Sketcher.Constraint("Coincident", 2, 2, 3, 1))
sketch8.addConstraint(Sketcher.Constraint("Coincident", 3, 2, 4, 1))
sketch8.addConstraint(Sketcher.Constraint("Coincident", 4, 2, 5, 1))
sketch8.addConstraint(Sketcher.Constraint("Coincident", 5, 2, 0, 1))
sketch8.addConstraint(Sketcher.Constraint("Horizontal", 0))
sketch8.addConstraint(Sketcher.Constraint("Vertical", 2))
sketch8.addConstraint(Sketcher.Constraint("Horizontal", 3))
sketch8.addConstraint(Sketcher.Constraint("Vertical", 4))
sketch8.addConstraint(Sketcher.Constraint("Symmetric", 1, 2, 4, 2, -2))
sketch8.addConstraint(Sketcher.Constraint("Equal", 1, 5))
sketch8.addConstraint(Sketcher.Constraint("DistanceX", 3, 1, 3, 2, Q("3 in")))
sketch8.addConstraint(Sketcher.Constraint("Angle", 1, Q("144 deg")))
sketch8.addConstraint(Sketcher.Constraint("DistanceX", 0, 2, 0, 1, Q("1.5625 in")))
sketch8.addConstraint(Sketcher.Constraint("DistanceY", 2, 2, -1, 1, Q("1.787 in")))
sketch8.addConstraint(Sketcher.Constraint("DistanceY", 2, 2, 2, 1, 44.458177))
pad7 = body4.newObject("PartDesign::Pad", "Pad006")
pad7.Profile = sketch8
pad7.Length = Q("3.1875 in")
doc.recompute()

thickness2 = body4.newObject("PartDesign::Thickness", "Thickness001")
thickness2.Base = (pad7, faces_at(pad7, [
    (0, -23.161, 4.763),
    (0, -14.196, 45.244),
    (28.972, -7.564, 45.244),
    (-28.972, -7.564, 45.244),
]))
thickness2.Value = Q("0.1875 in")
thickness2.Reversed = True
thickness2.Join = "Arc"
body5 = doc.addObject("PartDesign::Body", "Body004")

sketch9 = body5.newObject("Sketcher::SketchObject", "Sketch008")
sketch9.Placement = App.Placement(V(13.776869, 4.476376, 0), App.Rotation(V(0.309016994, -0.951056516, 0), V(0, 0, 0.999999999), V(-0.951056516, -0.309016994, 0), "ZXY"))
sketch9.addGeometry(Part.LineSegment(V(1.094029, 99.134748, 0), V(4.68716, 85.725, 0)), False)
sketch9.addGeometry(Part.LineSegment(V(4.68716, 85.725, 0), V(9.617663, 85.725, 0)), False)
sketch9.addGeometry(Part.LineSegment(V(9.617663, 85.725, 0), V(5.36397, 101.6, 0)), False)
sketch9.addGeometry(Part.LineSegment(V(5.36397, 101.6, 0), V(-16.86103, 123.825, 0)), False)
sketch9.addGeometry(Part.LineSegment(V(-16.86103, 123.825, 0), V(-29.56103, 123.825, 0)), False)
sketch9.addGeometry(Part.LineSegment(V(-29.56103, 123.825, 0), V(-29.56103, 119.0625, 0)), False)
sketch9.addGeometry(Part.LineSegment(V(-29.56103, 119.0625, 0), V(-18.833722, 119.0625, 0)), False)
sketch9.addGeometry(Part.LineSegment(V(-18.833722, 119.0625, 0), V(1.094029, 99.134748, 0)), False)
sketch9.addConstraint(Sketcher.Constraint("Coincident", 0, 2, 1, 1))
sketch9.addConstraint(Sketcher.Constraint("Coincident", 1, 2, 2, 1))
sketch9.addConstraint(Sketcher.Constraint("Coincident", 2, 2, 3, 1))
sketch9.addConstraint(Sketcher.Constraint("Coincident", 3, 2, 4, 1))
sketch9.addConstraint(Sketcher.Constraint("Coincident", 4, 2, 5, 1))
sketch9.addConstraint(Sketcher.Constraint("Coincident", 5, 2, 6, 1))
sketch9.addConstraint(Sketcher.Constraint("Coincident", 6, 2, 7, 1))
sketch9.addConstraint(Sketcher.Constraint("Coincident", 7, 2, 0, 1))
sketch9.addConstraint(Sketcher.Constraint("Horizontal", 1))
sketch9.addConstraint(Sketcher.Constraint("Horizontal", 4))
sketch9.addConstraint(Sketcher.Constraint("Vertical", 5))
sketch9.addConstraint(Sketcher.Constraint("Horizontal", 6))
sketch9.addConstraint(Sketcher.Constraint("Parallel", 0, 2))
sketch9.addConstraint(Sketcher.Constraint("Parallel", 3, 7))
sketch9.addConstraint(Sketcher.Constraint("DistanceX", 4, 2, 4, 1, Q("0.5 in")))
sketch9.addConstraint(Sketcher.Constraint("DistanceY", -1, 1, 2, 2, Q("4 in")))
sketch9.addConstraint(Sketcher.Constraint("Angle", 0, Q("-75 deg")))
sketch9.addConstraint(Sketcher.Constraint("Angle", 3, Q("135 deg")))
sketch9.addConstraint(Sketcher.Constraint("DistanceY", 0, 2, 3, 2, Q("1.5 in")))
sketch9.addConstraint(Sketcher.Constraint("DistanceY", 5, 2, 5, 1, Q("0.1875 in")))
sketch9.addConstraint(Sketcher.Constraint("DistanceY", -1, 1, 0, 2, Q("3.375 in")))
sketch9.addConstraint(Sketcher.Constraint("DistanceX", 1, 1, 1, 2, 4.930503))
sketch9.addConstraint(Sketcher.Constraint("DistanceX", 6, 1, 6, 2, 10.727308))
sketch9.addConstraint(Sketcher.Constraint("DistanceX", -1, 1, 0, 2, 4.68716))

sketch10 = body5.newObject("Sketcher::SketchObject", "Sketch009")
sketch10.AttachmentSupport = (doc.getObject("XY_Plane004"), [""])
sketch10.MapMode = "FlatFace"
sketch10.AttachmentOffset = App.Placement(V(0, 0, 3.375 * 25.4), App.Rotation())
sketch10.addGeometry(Part.LineSegment(V(16.74889, -4.670565, 0), V(43.849163, 15.018936, 0)), False)
sketch10.addGeometry(Part.LineSegment(V(43.849163, 15.018936, 0), V(54.200546, 46.877217, 0)), False)
sketch10.addGeometry(Part.LineSegment(V(54.200546, 46.877217, 0), V(43.849163, 78.735499, 0)), False)
sketch10.addGeometry(Part.LineSegment(V(43.849163, 78.735499, 0), V(16.74889, 98.425, 0)), False)
sketch10.addGeometry(Part.LineSegment(V(16.74889, 98.425, 0), V(-16.74889, 98.425, 0)), False)
sketch10.addGeometry(Part.LineSegment(V(-16.74889, 98.425, 0), V(-43.849163, 78.735499, 0)), False)
sketch10.addGeometry(Part.LineSegment(V(-43.849163, 78.735499, 0), V(-54.200546, 46.877217, 0)), False)
sketch10.addGeometry(Part.LineSegment(V(-54.200546, 46.877217, 0), V(-43.849163, 15.018936, 0)), False)
sketch10.addGeometry(Part.LineSegment(V(-43.849163, 15.018936, 0), V(-16.74889, -4.670565, 0)), False)
sketch10.addGeometry(Part.LineSegment(V(-16.74889, -4.670565, 0), V(16.74889, -4.670565, 0)), False)
sketch10.addConstraint(Sketcher.Constraint("Coincident", 0, 2, 1, 1))
sketch10.addConstraint(Sketcher.Constraint("Coincident", 1, 2, 2, 1))
sketch10.addConstraint(Sketcher.Constraint("Coincident", 2, 2, 3, 1))
sketch10.addConstraint(Sketcher.Constraint("Coincident", 3, 2, 4, 1))
sketch10.addConstraint(Sketcher.Constraint("Coincident", 4, 2, 5, 1))
sketch10.addConstraint(Sketcher.Constraint("Coincident", 5, 2, 6, 1))
sketch10.addConstraint(Sketcher.Constraint("Coincident", 6, 2, 7, 1))
sketch10.addConstraint(Sketcher.Constraint("Coincident", 7, 2, 8, 1))
sketch10.addConstraint(Sketcher.Constraint("Coincident", 8, 2, 9, 1))
sketch10.addConstraint(Sketcher.Constraint("Coincident", 9, 2, 0, 1))
sketch10.addConstraint(Sketcher.Constraint("Horizontal", 4))
sketch10.addConstraint(Sketcher.Constraint("Horizontal", 9))
sketch10.addConstraint(Sketcher.Constraint("Symmetric", 2, 2, 5, 2, -2))
sketch10.addConstraint(Sketcher.Constraint("Symmetric", 1, 2, 6, 2, -2))
sketch10.addConstraint(Sketcher.Constraint("Symmetric", 0, 2, 7, 2, -2))
sketch10.addConstraint(Sketcher.Constraint("Parallel", 0, 5))
sketch10.addConstraint(Sketcher.Constraint("Parallel", 1, 6))
sketch10.addConstraint(Sketcher.Constraint("Parallel", 3, 8))
sketch10.addConstraint(Sketcher.Constraint("Vertical", 0, 2, 2, 2))
sketch10.addConstraint(Sketcher.Constraint("Vertical", 4, 2, 8, 2))
sketch10.addConstraint(Sketcher.Constraint("Vertical", 3, 2, 9, 2))
sketch10.addConstraint(Sketcher.Constraint("Equal", 0, 1))
sketch10.addConstraint(Sketcher.Constraint("Angle", 0, Q("36 deg")))
sketch10.addConstraint(Sketcher.Constraint("Angle", 1, Q("72 deg")))
sketch10.addConstraint(Sketcher.Constraint("DistanceY", -1, 1, 3, 2, Q("3.875 in")))
sketch10.addConstraint(Sketcher.Constraint("DistanceX", 4, 2, 4, 1, 33.49778))
sketch10.addConstraint(Sketcher.Constraint("DistanceY", -1, 1, 2, 2, 78.735499))
doc.recompute()

additivepipe = body5.newObject("PartDesign::AdditivePipe", "AdditivePipe")
additivepipe.Profile = sketch9
additivepipe.Spine = (sketch10, ["Edge1", "Edge2", "Edge3", "Edge4", "Edge5", "Edge6", "Edge7", "Edge8", "Edge9", "Edge10"])
additivepipe.Transition = "Right corner"

doc.recompute()
